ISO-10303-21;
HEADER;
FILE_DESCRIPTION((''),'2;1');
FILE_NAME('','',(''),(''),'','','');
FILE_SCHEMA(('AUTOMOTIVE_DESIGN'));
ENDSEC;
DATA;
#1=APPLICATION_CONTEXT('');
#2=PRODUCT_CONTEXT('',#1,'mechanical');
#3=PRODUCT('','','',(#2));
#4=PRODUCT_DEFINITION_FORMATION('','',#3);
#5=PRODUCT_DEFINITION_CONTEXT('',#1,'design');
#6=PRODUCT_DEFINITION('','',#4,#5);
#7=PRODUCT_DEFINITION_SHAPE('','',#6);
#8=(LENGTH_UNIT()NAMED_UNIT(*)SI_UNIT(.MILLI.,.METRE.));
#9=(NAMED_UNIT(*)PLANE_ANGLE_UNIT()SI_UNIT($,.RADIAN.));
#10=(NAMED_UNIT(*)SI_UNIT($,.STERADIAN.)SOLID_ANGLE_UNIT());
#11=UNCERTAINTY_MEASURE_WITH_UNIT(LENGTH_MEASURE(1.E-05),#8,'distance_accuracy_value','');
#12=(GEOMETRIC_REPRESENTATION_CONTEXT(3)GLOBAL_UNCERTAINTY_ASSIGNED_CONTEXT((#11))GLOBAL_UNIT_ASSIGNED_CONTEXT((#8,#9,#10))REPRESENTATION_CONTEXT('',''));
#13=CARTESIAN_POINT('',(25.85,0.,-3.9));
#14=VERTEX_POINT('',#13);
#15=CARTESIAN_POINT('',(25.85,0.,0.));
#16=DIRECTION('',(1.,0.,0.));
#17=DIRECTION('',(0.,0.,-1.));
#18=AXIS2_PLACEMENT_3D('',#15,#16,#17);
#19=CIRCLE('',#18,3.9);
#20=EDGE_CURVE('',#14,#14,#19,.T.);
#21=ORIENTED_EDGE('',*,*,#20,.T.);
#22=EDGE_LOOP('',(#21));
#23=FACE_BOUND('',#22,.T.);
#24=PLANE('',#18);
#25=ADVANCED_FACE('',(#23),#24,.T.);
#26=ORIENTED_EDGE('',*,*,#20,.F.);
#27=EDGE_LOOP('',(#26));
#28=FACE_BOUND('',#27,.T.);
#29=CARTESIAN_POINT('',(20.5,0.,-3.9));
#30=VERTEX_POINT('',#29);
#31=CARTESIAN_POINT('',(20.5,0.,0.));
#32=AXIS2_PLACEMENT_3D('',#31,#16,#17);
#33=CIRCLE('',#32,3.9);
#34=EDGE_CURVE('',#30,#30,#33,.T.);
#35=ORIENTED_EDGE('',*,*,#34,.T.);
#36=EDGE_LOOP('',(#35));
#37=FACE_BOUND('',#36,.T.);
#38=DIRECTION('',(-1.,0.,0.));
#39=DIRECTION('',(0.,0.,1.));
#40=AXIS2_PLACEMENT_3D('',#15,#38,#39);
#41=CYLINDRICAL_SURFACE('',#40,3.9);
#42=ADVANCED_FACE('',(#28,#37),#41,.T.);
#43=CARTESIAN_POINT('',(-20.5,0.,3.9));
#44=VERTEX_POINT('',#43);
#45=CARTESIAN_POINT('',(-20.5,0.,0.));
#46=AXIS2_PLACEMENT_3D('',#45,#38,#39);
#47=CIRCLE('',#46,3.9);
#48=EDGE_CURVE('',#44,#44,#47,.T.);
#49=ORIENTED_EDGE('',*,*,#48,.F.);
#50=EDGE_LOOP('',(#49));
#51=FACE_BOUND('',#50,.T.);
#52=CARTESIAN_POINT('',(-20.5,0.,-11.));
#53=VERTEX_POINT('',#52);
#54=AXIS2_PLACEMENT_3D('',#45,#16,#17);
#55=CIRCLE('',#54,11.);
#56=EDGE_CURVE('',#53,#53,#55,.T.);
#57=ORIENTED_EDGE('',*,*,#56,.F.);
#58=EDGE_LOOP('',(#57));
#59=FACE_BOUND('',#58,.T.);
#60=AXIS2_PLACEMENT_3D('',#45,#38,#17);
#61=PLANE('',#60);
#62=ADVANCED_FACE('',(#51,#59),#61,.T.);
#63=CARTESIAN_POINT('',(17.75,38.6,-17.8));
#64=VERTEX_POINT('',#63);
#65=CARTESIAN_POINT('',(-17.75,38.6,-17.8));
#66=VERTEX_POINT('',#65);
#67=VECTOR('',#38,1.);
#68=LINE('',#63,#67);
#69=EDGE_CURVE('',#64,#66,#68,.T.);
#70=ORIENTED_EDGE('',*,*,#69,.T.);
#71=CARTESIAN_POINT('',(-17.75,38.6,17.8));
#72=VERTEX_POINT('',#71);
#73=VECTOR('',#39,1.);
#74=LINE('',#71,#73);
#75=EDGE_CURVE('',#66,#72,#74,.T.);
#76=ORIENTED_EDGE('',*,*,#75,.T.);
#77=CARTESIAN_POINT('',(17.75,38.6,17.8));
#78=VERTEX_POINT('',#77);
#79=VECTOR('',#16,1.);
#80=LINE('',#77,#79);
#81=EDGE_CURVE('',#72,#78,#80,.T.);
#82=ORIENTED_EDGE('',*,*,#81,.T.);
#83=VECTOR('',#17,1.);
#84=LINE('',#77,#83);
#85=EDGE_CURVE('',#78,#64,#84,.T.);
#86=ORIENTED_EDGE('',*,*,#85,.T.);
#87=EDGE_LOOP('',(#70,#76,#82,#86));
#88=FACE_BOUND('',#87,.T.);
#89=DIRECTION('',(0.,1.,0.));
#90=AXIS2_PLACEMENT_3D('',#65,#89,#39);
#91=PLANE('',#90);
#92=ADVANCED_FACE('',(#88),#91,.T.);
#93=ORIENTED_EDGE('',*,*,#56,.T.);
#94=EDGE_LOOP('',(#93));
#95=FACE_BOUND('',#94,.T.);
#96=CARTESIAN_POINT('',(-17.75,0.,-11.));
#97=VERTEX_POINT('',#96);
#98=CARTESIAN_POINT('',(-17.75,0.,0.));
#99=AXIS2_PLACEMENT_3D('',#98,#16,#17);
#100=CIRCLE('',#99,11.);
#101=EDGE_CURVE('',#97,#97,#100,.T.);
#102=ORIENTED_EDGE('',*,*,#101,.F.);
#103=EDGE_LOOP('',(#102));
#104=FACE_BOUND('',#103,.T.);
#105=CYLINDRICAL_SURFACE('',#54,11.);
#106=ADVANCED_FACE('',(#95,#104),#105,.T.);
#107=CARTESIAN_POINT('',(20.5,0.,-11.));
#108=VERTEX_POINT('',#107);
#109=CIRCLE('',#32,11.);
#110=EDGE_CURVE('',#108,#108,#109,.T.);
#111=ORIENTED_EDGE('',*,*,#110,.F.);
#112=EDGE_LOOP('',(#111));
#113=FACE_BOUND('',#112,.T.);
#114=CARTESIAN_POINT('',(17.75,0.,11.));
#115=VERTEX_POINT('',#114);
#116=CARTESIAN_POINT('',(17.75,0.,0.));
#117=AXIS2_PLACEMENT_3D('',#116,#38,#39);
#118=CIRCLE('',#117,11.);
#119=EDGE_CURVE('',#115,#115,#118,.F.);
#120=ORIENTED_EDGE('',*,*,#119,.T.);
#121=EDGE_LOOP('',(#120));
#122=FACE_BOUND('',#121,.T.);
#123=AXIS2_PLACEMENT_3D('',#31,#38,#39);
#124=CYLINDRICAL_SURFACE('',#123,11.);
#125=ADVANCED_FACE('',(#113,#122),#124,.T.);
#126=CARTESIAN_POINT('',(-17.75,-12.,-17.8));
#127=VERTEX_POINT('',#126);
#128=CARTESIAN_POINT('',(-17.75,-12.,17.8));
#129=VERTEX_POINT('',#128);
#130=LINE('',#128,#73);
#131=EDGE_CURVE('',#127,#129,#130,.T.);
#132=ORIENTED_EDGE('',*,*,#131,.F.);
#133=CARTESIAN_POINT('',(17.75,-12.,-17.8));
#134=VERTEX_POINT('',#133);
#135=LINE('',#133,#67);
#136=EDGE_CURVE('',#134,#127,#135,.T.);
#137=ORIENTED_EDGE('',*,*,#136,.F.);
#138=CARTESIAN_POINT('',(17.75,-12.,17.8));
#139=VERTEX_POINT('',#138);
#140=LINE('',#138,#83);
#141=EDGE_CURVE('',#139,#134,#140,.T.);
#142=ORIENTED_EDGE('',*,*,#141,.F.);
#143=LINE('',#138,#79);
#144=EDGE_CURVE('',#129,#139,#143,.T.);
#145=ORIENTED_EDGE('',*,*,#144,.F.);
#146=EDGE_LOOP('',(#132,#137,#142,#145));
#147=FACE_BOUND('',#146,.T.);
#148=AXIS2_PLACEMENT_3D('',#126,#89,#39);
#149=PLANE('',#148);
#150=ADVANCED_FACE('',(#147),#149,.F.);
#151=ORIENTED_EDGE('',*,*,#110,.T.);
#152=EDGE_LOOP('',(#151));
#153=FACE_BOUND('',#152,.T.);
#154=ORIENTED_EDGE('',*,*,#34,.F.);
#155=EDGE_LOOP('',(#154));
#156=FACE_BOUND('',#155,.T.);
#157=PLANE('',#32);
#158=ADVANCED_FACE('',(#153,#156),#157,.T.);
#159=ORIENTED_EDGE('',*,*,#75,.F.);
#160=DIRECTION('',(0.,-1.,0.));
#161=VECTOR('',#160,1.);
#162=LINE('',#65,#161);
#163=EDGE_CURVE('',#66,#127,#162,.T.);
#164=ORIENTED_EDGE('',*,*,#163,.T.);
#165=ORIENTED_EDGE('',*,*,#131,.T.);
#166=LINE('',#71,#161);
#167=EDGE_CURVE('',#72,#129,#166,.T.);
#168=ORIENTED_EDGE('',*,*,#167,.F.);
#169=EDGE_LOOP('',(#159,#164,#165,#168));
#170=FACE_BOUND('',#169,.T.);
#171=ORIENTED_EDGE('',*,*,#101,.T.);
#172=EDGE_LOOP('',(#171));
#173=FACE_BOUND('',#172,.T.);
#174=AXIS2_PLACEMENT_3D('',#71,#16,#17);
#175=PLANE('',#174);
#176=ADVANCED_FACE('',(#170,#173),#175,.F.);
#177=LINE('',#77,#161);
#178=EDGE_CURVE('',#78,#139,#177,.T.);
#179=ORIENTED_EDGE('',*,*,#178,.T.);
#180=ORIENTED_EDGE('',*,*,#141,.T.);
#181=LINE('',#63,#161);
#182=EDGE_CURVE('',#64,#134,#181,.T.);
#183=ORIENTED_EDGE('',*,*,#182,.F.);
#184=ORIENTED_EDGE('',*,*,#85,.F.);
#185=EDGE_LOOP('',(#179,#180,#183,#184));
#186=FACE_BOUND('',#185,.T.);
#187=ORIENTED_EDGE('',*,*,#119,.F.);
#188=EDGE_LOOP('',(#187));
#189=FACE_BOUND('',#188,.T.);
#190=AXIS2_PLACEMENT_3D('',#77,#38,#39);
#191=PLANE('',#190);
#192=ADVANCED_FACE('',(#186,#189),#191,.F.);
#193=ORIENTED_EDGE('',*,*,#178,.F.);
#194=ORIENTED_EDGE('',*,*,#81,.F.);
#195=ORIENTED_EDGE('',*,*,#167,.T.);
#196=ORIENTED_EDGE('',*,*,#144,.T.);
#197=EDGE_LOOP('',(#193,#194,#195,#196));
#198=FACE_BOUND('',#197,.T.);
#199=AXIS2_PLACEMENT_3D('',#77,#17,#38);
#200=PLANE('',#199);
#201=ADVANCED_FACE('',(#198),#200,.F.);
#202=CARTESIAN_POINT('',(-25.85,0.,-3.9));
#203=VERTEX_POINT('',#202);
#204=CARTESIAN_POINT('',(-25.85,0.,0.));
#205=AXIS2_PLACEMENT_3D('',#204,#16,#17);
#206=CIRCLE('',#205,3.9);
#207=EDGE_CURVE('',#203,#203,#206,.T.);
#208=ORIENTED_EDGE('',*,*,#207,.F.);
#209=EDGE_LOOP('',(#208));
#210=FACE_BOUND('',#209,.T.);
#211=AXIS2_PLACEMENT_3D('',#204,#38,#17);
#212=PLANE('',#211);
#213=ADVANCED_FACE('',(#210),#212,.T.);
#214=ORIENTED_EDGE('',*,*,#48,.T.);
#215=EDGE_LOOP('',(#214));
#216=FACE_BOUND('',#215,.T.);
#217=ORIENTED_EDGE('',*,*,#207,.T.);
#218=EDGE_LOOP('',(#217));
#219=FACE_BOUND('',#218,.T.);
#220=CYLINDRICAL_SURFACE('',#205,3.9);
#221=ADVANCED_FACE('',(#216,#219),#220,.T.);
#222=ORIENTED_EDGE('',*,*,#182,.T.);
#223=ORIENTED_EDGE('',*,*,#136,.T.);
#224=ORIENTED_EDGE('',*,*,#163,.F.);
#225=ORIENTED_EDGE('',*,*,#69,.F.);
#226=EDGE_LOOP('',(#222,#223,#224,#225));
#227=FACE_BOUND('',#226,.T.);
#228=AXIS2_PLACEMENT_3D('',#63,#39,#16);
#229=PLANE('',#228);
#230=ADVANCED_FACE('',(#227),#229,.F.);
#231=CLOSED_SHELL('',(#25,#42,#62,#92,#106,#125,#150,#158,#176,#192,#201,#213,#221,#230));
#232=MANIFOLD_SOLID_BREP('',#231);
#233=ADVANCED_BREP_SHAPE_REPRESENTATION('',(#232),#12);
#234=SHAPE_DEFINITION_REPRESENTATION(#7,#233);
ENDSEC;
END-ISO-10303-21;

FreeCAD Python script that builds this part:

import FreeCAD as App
import Part
import Sketcher

doc = App.newDocument("Part")
body = doc.addObject("PartDesign::Body", "Body")

sketch1 = body.newObject("Sketcher::SketchObject", "Sketch")
sketch1.AttachmentSupport = (doc.getObject("XZ_Plane"), [""])
sketch1.MapMode = "FlatFace"
sketch1.AttachmentOffset = App.Placement(App.Vector(0, 0, 12), App.Rotation())
sketch1.addGeometry([
    Part.LineSegment(App.Vector(18, 18, 0), App.Vector(18, -18, 0)),
    Part.LineSegment(App.Vector(18, -18, 0), App.Vector(-18, -18, 0)),
    Part.LineSegment(App.Vector(-18, -18, 0), App.Vector(-18, 18, 0)),
    Part.LineSegment(App.Vector(-18, 18, 0), App.Vector(18, 18, 0)),
], False)
sketch1.addConstraint([
    Sketcher.Constraint("Coincident", 0, 2, 1, 1),
    Sketcher.Constraint("Coincident", 1, 2, 2, 1),
    Sketcher.Constraint("Coincident", 2, 2, 3, 1),
    Sketcher.Constraint("Coincident", 3, 2, 0, 1),
    Sketcher.Constraint("Vertical", 0),
    Sketcher.Constraint("Horizontal", 1),
    Sketcher.Constraint("Vertical", 2),
    Sketcher.Constraint("Horizontal", 3),
    Sketcher.Constraint("Symmetric", 0, 2, 2, 2, -1, 1),
    Sketcher.Constraint("DistanceX", 1, 2, 1, 1, 35.5),
    Sketcher.Constraint("DistanceY", 0, 2, 0, 1, 35.6),
])
pad1 = body.newObject("PartDesign::Pad", "Pad")
pad1.Profile = sketch1
pad1.Length = 50.6
pad1.Reversed = True

sketch2 = body.newObject("Sketcher::SketchObject", "Sketch001")
sketch2.AttachmentSupport = (doc.getObject("YZ_Plane"), [""])
sketch2.MapMode = "FlatFace"
sketch2.AttachmentOffset = App.Placement(App.Vector(0, 0, 17.75), App.Rotation())
sketch2.addGeometry(Part.Circle(App.Vector(0, 0, 0), App.Vector(0, 0, 1), 11), False)
sketch2.addConstraint([
    Sketcher.Constraint("Coincident", 0, 3, -1, 1),
    Sketcher.Constraint("Diameter", 0, 22.0),
])
pad2 = body.newObject("PartDesign::Pad", "Pad001")
pad2.Profile = sketch2
pad2.Length = 2.75

sketch3 = body.newObject("Sketcher::SketchObject", "Sketch002")
sketch3.AttachmentSupport = (doc.getObject("YZ_Plane"), [""])
sketch3.MapMode = "FlatFace"
sketch3.AttachmentOffset = App.Placement(App.Vector(0, 0, 20.5), App.Rotation())
sketch3.addGeometry(Part.Circle(App.Vector(0, 0, 0), App.Vector(0, 0, 1), 3.9), False)
sketch3.addConstraint([
    Sketcher.Constraint("Coincident", 0, 3, -1, 1),
    Sketcher.Constraint("Diameter", 0, 7.8),
])
pad3 = body.newObject("PartDesign::Pad", "Pad002")
pad3.Profile = sketch3
pad3.Length = 5.35
doc.recompute()

mirrored = body.newObject("PartDesign::Mirrored", "Mirrored")
mirrored.Originals = [pad2, pad3]
mirrored.MirrorPlane = (doc.getObject("YZ_Plane"), [""])
body.Tip = mirrored

doc.recompute()
